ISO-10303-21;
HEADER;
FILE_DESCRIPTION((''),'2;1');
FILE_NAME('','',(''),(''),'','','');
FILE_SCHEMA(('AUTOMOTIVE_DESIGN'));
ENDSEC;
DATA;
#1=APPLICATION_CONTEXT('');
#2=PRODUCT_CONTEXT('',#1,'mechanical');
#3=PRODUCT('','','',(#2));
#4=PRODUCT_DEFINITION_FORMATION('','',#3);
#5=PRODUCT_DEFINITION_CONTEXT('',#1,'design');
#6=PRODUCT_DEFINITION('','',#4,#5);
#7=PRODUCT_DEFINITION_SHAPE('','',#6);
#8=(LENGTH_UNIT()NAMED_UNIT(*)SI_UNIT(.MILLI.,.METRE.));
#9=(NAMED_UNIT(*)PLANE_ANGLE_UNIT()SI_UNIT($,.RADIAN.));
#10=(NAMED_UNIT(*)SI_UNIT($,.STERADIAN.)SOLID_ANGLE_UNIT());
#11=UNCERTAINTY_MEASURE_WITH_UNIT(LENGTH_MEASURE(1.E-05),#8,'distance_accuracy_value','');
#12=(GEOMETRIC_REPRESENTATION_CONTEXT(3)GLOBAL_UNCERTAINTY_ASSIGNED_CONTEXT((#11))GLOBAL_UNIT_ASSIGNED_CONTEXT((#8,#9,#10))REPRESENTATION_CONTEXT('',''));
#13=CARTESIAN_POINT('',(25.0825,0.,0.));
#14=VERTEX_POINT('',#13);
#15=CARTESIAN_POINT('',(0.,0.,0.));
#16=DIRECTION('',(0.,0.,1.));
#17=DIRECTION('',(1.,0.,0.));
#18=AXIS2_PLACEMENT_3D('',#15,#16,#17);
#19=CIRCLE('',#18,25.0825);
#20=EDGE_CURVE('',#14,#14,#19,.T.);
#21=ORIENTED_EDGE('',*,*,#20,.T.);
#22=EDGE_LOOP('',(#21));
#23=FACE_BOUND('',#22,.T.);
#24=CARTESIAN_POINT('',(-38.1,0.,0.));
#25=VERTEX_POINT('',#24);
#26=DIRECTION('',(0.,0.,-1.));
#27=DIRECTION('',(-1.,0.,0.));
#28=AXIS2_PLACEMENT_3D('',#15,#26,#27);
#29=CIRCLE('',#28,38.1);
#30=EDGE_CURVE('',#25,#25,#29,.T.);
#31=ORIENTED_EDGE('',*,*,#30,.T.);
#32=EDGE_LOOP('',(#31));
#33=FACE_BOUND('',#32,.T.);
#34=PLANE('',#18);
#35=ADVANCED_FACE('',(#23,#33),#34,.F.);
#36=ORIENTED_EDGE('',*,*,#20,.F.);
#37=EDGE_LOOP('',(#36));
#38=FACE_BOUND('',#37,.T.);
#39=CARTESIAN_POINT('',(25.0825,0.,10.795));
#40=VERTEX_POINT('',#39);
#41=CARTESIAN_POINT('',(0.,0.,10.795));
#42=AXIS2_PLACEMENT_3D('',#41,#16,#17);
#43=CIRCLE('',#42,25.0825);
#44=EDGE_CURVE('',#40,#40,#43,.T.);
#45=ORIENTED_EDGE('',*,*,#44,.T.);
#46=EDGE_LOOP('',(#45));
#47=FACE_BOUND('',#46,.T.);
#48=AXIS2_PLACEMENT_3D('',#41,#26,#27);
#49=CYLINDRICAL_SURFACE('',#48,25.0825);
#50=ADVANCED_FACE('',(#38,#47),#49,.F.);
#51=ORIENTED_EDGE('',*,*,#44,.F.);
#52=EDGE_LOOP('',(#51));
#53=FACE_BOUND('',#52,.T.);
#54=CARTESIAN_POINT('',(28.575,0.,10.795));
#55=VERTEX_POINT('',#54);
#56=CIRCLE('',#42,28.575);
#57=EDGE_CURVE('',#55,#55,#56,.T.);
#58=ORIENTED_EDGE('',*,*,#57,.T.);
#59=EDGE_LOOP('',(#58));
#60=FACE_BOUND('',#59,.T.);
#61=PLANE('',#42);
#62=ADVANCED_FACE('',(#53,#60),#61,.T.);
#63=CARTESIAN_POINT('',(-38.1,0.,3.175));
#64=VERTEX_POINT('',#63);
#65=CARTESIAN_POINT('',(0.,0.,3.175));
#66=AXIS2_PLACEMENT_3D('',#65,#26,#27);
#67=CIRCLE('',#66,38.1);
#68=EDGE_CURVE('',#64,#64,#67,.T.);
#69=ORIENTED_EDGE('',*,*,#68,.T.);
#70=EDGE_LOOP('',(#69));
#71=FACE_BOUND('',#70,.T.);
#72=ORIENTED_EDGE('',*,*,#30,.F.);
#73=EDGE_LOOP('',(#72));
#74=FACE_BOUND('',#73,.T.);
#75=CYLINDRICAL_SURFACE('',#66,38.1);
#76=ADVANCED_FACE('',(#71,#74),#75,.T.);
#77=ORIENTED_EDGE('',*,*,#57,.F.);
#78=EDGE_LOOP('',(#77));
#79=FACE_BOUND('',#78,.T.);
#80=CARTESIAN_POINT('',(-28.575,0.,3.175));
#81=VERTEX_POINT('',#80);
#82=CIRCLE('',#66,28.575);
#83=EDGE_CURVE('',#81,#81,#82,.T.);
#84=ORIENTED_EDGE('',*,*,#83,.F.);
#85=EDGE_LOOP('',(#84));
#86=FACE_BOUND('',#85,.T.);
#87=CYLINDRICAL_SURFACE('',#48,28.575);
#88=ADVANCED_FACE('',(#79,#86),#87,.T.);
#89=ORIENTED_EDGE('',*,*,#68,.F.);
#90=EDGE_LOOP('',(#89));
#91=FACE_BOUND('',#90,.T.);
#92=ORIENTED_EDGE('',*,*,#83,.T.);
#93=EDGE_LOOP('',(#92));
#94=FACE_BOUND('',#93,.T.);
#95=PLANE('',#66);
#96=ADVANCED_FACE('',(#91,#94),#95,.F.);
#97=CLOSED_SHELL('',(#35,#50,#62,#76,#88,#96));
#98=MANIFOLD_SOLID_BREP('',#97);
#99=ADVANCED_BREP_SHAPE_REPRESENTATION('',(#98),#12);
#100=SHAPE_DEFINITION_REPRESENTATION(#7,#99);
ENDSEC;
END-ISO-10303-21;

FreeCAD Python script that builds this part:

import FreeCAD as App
import Part
import Sketcher
from FreeCAD import Vector
Q = App.Units.Quantity

doc = App.newDocument("Part")
body = doc.addObject("PartDesign::Body", "Body")

# Sketch on XY plane
sketch1 = body.newObject("Sketcher::SketchObject", "Sketch")
sketch1.AttachmentSupport = (doc.getObject("XY_Plane"), [""])
sketch1.MapMode = "FlatFace"
sketch1.addGeometry(Part.Circle(Vector(0, 0, 0), Vector(0, 0, 1), 29), False)
sketch1.addGeometry(Part.Circle(Vector(0, 0, 0), Vector(0, 0, 1), 25), False)
sketch1.addConstraint(Sketcher.Constraint("Coincident", 0, 3, -1, 1))
sketch1.addConstraint(Sketcher.Constraint("Coincident", 1, 3, -1, 1))
sketch1.addConstraint(Sketcher.Constraint("Diameter", 0, Q("2.25 in")))
sketch1.addConstraint(Sketcher.Constraint("Diameter", 1, Q("1.975 in")))
pad1 = body.newObject("PartDesign::Pad", "Pad")
pad1.Profile = sketch1
pad1.Length = Q("0.425 in")

# Sketch on XY plane
sketch2 = body.newObject("Sketcher::SketchObject", "Sketch001")
sketch2.AttachmentSupport = (doc.getObject("XY_Plane"), [""])
sketch2.MapMode = "FlatFace"
sketch2.addGeometry(Part.Circle(Vector(0, 0, 0), Vector(0, 0, 1), 38), False)
sketch2.addGeometry(Part.Circle(Vector(0, 0, 0), Vector(0, 0, 1), 29), False)
sketch2.addConstraint(Sketcher.Constraint("Coincident", 0, 3, -1, 1))
sketch2.addConstraint(Sketcher.Constraint("Coincident", 1, 3, -1, 1))
sketch2.addConstraint(Sketcher.Constraint("Diameter", 0, Q("3 in")))
sketch2.addConstraint(Sketcher.Constraint("Diameter", 1, Q("2.25 in")))
pad2 = body.newObject("PartDesign::Pad", "Pad001")
pad2.Profile = sketch2
pad2.Length = Q("0.125 in")

doc.recompute()
